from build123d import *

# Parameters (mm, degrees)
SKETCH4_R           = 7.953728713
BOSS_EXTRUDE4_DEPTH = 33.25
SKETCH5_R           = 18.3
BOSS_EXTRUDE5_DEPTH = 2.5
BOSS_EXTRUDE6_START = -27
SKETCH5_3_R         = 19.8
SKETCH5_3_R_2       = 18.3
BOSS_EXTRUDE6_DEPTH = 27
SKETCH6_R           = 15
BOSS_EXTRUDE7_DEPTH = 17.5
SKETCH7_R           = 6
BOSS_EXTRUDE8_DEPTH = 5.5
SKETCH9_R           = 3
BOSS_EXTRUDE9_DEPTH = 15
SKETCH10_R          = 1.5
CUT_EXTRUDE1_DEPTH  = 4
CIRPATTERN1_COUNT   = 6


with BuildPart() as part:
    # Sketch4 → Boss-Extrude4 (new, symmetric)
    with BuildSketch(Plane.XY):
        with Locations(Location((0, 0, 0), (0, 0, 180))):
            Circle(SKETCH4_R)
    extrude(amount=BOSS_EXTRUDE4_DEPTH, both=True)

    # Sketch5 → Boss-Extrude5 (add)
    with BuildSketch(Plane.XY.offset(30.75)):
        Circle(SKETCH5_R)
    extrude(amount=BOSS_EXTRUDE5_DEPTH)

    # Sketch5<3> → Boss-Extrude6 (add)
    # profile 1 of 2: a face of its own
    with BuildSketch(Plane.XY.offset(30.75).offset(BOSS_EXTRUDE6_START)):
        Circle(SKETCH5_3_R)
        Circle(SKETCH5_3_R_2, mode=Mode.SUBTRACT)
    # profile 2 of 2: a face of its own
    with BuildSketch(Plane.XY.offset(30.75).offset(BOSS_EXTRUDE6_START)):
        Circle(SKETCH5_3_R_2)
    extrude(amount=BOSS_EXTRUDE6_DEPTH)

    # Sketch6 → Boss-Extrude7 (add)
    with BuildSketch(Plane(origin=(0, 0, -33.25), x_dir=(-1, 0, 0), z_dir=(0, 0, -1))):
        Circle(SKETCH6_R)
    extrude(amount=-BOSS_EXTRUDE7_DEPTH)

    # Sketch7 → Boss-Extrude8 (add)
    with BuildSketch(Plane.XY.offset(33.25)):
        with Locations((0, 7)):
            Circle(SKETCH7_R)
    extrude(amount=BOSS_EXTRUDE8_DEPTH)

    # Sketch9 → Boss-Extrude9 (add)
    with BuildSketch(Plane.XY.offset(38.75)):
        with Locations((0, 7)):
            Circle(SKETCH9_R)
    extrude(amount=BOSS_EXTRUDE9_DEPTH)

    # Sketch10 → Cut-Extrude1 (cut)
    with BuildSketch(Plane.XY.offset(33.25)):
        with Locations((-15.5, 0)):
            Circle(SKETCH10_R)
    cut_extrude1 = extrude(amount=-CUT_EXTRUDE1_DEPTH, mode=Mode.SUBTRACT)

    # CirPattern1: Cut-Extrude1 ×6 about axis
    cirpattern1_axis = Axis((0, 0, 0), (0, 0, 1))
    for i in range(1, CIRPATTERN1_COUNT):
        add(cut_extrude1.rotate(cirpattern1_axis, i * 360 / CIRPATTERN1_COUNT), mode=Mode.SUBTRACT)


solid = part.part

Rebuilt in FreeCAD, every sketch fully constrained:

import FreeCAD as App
import Part
import Sketcher

V = App.Vector
Q = App.Units.Quantity

doc = App.newDocument("Part")
body = doc.addObject("PartDesign::Body", "Body")

sketch1 = doc.addObject("Sketcher::SketchObject", "Sketch")
body.addObject(sketch1)
sketch1.AttachmentSupport = (doc.XY_Plane, [""])
sketch1.MapMode = "FlatFace"
sketch1.addGeometry(Part.Circle(V(0, 0, 0), V(0, 0, 1), 8), False)
sketch1.addConstraint([
    Sketcher.Constraint("Coincident", 0, 3, -1, 1),
    Sketcher.Constraint("Diameter", 0, Q("15.907457 mm")),
])
pad1 = doc.addObject("PartDesign::Pad", "Pad")
body.addObject(pad1)
pad1.Profile = sketch1
pad1.Length = 66.5
pad1.Midplane = True

sketch2 = doc.addObject("Sketcher::SketchObject", "Sketch001")
body.addObject(sketch2)
sketch2.AttachmentSupport = (doc.XY_Plane, [""])
sketch2.MapMode = "FlatFace"
sketch2.AttachmentOffset = App.Placement(V(0, 0, 30.75), App.Rotation())
sketch2.addGeometry(Part.Circle(V(0, 0, 0), V(0, 0, 1), 18), False)
sketch2.addConstraint([
    Sketcher.Constraint("Coincident", 0, 3, -1, 1),
    Sketcher.Constraint("Diameter", 0, Q("36.6 mm")),
])
pad2 = doc.addObject("PartDesign::Pad", "Pad001")
body.addObject(pad2)
pad2.Profile = sketch2
pad2.Length = 2.5

sketch3 = doc.addObject("Sketcher::SketchObject", "Sketch002")
body.addObject(sketch3)
sketch3.AttachmentSupport = (doc.XY_Plane, [""])
sketch3.MapMode = "FlatFace"
sketch3.AttachmentOffset = App.Placement(V(0, 0, 3.75), App.Rotation())
sketch3.addGeometry(Part.Circle(V(0, 0, 0), V(0, 0, 1), 20), False)
sketch3.addConstraint([
    Sketcher.Constraint("Coincident", 0, 3, -1, 1),
    Sketcher.Constraint("Diameter", 0, Q("39.6 mm")),
])
pad3 = doc.addObject("PartDesign::Pad", "Pad002")
body.addObject(pad3)
pad3.Profile = sketch3
pad3.Length = 27

sketch4 = doc.addObject("Sketcher::SketchObject", "Sketch003")
body.addObject(sketch4)
sketch4.AttachmentSupport = (doc.XY_Plane, [""])
sketch4.MapMode = "FlatFace"
sketch4.AttachmentOffset = App.Placement(V(0, 0, -33.25), App.Rotation())
sketch4.addGeometry(Part.Circle(V(0, 0, 0), V(0, 0, 1), 15), False)
sketch4.addConstraint([
    Sketcher.Constraint("Coincident", 0, 3, -1, 1),
    Sketcher.Constraint("Diameter", 0, Q("30 mm")),
])
pad4 = doc.addObject("PartDesign::Pad", "Pad003")
body.addObject(pad4)
pad4.Profile = sketch4
pad4.Length = 17.5

sketch5 = doc.addObject("Sketcher::SketchObject", "Sketch004")
body.addObject(sketch5)
sketch5.AttachmentSupport = (doc.XY_Plane, [""])
sketch5.MapMode = "FlatFace"
sketch5.AttachmentOffset = App.Placement(V(0, 0, 33.25), App.Rotation())
sketch5.addGeometry(Part.Circle(V(0, 7, 0), V(0, 0, 1), 6), False)
sketch5.addConstraint([
    Sketcher.Constraint("PointOnObject", 0, 3, -2),
    Sketcher.Constraint("Diameter", 0, Q("12 mm")),
    Sketcher.Constraint("DistanceY", -1, 1, 0, 3, Q("7 mm")),
])
pad5 = doc.addObject("PartDesign::Pad", "Pad004")
body.addObject(pad5)
pad5.Profile = sketch5
pad5.Length = 5.5

sketch6 = doc.addObject("Sketcher::SketchObject", "Sketch005")
body.addObject(sketch6)
sketch6.AttachmentSupport = (doc.XY_Plane, [""])
sketch6.MapMode = "FlatFace"
sketch6.AttachmentOffset = App.Placement(V(0, 0, 38.75), App.Rotation())
sketch6.addGeometry(Part.Circle(V(0, 7, 0), V(0, 0, 1), 3), False)
sketch6.addConstraint([
    Sketcher.Constraint("PointOnObject", 0, 3, -2),
    Sketcher.Constraint("Diameter", 0, Q("6 mm")),
    Sketcher.Constraint("DistanceY", -1, 1, 0, 3, Q("7 mm")),
])
pad6 = doc.addObject("PartDesign::Pad", "Pad005")
body.addObject(pad6)
pad6.Profile = sketch6
pad6.Length = 15

sketch7 = doc.addObject("Sketcher::SketchObject", "Sketch006")
body.addObject(sketch7)
sketch7.AttachmentSupport = (doc.XY_Plane, [""])
sketch7.MapMode = "FlatFace"
sketch7.AttachmentOffset = App.Placement(V(0, 0, 33.25), App.Rotation())
sketch7.addGeometry(Part.Circle(V(-15.5, 0, 0), V(0, 0, 1), 1.5), False)
sketch7.addConstraint([
    Sketcher.Constraint("PointOnObject", 0, 3, -1),
    Sketcher.Constraint("Diameter", 0, Q("3 mm")),
    Sketcher.Constraint("DistanceX", 0, 3, -1, 1, Q("15.5 mm")),
])
pocket1 = doc.addObject("PartDesign::Pocket", "Pocket")
body.addObject(pocket1)
pocket1.Profile = sketch7
pocket1.Length = 4
doc.recompute()

polarpattern = doc.addObject("PartDesign::PolarPattern", "PolarPattern")
body.addObject(polarpattern)
polarpattern.Originals = [pocket1]
polarpattern.Axis = (doc.Z_Axis, [""])
polarpattern.Angle = 360
polarpattern.Occurrences = 6
body.Tip = polarpattern

doc.recompute()
